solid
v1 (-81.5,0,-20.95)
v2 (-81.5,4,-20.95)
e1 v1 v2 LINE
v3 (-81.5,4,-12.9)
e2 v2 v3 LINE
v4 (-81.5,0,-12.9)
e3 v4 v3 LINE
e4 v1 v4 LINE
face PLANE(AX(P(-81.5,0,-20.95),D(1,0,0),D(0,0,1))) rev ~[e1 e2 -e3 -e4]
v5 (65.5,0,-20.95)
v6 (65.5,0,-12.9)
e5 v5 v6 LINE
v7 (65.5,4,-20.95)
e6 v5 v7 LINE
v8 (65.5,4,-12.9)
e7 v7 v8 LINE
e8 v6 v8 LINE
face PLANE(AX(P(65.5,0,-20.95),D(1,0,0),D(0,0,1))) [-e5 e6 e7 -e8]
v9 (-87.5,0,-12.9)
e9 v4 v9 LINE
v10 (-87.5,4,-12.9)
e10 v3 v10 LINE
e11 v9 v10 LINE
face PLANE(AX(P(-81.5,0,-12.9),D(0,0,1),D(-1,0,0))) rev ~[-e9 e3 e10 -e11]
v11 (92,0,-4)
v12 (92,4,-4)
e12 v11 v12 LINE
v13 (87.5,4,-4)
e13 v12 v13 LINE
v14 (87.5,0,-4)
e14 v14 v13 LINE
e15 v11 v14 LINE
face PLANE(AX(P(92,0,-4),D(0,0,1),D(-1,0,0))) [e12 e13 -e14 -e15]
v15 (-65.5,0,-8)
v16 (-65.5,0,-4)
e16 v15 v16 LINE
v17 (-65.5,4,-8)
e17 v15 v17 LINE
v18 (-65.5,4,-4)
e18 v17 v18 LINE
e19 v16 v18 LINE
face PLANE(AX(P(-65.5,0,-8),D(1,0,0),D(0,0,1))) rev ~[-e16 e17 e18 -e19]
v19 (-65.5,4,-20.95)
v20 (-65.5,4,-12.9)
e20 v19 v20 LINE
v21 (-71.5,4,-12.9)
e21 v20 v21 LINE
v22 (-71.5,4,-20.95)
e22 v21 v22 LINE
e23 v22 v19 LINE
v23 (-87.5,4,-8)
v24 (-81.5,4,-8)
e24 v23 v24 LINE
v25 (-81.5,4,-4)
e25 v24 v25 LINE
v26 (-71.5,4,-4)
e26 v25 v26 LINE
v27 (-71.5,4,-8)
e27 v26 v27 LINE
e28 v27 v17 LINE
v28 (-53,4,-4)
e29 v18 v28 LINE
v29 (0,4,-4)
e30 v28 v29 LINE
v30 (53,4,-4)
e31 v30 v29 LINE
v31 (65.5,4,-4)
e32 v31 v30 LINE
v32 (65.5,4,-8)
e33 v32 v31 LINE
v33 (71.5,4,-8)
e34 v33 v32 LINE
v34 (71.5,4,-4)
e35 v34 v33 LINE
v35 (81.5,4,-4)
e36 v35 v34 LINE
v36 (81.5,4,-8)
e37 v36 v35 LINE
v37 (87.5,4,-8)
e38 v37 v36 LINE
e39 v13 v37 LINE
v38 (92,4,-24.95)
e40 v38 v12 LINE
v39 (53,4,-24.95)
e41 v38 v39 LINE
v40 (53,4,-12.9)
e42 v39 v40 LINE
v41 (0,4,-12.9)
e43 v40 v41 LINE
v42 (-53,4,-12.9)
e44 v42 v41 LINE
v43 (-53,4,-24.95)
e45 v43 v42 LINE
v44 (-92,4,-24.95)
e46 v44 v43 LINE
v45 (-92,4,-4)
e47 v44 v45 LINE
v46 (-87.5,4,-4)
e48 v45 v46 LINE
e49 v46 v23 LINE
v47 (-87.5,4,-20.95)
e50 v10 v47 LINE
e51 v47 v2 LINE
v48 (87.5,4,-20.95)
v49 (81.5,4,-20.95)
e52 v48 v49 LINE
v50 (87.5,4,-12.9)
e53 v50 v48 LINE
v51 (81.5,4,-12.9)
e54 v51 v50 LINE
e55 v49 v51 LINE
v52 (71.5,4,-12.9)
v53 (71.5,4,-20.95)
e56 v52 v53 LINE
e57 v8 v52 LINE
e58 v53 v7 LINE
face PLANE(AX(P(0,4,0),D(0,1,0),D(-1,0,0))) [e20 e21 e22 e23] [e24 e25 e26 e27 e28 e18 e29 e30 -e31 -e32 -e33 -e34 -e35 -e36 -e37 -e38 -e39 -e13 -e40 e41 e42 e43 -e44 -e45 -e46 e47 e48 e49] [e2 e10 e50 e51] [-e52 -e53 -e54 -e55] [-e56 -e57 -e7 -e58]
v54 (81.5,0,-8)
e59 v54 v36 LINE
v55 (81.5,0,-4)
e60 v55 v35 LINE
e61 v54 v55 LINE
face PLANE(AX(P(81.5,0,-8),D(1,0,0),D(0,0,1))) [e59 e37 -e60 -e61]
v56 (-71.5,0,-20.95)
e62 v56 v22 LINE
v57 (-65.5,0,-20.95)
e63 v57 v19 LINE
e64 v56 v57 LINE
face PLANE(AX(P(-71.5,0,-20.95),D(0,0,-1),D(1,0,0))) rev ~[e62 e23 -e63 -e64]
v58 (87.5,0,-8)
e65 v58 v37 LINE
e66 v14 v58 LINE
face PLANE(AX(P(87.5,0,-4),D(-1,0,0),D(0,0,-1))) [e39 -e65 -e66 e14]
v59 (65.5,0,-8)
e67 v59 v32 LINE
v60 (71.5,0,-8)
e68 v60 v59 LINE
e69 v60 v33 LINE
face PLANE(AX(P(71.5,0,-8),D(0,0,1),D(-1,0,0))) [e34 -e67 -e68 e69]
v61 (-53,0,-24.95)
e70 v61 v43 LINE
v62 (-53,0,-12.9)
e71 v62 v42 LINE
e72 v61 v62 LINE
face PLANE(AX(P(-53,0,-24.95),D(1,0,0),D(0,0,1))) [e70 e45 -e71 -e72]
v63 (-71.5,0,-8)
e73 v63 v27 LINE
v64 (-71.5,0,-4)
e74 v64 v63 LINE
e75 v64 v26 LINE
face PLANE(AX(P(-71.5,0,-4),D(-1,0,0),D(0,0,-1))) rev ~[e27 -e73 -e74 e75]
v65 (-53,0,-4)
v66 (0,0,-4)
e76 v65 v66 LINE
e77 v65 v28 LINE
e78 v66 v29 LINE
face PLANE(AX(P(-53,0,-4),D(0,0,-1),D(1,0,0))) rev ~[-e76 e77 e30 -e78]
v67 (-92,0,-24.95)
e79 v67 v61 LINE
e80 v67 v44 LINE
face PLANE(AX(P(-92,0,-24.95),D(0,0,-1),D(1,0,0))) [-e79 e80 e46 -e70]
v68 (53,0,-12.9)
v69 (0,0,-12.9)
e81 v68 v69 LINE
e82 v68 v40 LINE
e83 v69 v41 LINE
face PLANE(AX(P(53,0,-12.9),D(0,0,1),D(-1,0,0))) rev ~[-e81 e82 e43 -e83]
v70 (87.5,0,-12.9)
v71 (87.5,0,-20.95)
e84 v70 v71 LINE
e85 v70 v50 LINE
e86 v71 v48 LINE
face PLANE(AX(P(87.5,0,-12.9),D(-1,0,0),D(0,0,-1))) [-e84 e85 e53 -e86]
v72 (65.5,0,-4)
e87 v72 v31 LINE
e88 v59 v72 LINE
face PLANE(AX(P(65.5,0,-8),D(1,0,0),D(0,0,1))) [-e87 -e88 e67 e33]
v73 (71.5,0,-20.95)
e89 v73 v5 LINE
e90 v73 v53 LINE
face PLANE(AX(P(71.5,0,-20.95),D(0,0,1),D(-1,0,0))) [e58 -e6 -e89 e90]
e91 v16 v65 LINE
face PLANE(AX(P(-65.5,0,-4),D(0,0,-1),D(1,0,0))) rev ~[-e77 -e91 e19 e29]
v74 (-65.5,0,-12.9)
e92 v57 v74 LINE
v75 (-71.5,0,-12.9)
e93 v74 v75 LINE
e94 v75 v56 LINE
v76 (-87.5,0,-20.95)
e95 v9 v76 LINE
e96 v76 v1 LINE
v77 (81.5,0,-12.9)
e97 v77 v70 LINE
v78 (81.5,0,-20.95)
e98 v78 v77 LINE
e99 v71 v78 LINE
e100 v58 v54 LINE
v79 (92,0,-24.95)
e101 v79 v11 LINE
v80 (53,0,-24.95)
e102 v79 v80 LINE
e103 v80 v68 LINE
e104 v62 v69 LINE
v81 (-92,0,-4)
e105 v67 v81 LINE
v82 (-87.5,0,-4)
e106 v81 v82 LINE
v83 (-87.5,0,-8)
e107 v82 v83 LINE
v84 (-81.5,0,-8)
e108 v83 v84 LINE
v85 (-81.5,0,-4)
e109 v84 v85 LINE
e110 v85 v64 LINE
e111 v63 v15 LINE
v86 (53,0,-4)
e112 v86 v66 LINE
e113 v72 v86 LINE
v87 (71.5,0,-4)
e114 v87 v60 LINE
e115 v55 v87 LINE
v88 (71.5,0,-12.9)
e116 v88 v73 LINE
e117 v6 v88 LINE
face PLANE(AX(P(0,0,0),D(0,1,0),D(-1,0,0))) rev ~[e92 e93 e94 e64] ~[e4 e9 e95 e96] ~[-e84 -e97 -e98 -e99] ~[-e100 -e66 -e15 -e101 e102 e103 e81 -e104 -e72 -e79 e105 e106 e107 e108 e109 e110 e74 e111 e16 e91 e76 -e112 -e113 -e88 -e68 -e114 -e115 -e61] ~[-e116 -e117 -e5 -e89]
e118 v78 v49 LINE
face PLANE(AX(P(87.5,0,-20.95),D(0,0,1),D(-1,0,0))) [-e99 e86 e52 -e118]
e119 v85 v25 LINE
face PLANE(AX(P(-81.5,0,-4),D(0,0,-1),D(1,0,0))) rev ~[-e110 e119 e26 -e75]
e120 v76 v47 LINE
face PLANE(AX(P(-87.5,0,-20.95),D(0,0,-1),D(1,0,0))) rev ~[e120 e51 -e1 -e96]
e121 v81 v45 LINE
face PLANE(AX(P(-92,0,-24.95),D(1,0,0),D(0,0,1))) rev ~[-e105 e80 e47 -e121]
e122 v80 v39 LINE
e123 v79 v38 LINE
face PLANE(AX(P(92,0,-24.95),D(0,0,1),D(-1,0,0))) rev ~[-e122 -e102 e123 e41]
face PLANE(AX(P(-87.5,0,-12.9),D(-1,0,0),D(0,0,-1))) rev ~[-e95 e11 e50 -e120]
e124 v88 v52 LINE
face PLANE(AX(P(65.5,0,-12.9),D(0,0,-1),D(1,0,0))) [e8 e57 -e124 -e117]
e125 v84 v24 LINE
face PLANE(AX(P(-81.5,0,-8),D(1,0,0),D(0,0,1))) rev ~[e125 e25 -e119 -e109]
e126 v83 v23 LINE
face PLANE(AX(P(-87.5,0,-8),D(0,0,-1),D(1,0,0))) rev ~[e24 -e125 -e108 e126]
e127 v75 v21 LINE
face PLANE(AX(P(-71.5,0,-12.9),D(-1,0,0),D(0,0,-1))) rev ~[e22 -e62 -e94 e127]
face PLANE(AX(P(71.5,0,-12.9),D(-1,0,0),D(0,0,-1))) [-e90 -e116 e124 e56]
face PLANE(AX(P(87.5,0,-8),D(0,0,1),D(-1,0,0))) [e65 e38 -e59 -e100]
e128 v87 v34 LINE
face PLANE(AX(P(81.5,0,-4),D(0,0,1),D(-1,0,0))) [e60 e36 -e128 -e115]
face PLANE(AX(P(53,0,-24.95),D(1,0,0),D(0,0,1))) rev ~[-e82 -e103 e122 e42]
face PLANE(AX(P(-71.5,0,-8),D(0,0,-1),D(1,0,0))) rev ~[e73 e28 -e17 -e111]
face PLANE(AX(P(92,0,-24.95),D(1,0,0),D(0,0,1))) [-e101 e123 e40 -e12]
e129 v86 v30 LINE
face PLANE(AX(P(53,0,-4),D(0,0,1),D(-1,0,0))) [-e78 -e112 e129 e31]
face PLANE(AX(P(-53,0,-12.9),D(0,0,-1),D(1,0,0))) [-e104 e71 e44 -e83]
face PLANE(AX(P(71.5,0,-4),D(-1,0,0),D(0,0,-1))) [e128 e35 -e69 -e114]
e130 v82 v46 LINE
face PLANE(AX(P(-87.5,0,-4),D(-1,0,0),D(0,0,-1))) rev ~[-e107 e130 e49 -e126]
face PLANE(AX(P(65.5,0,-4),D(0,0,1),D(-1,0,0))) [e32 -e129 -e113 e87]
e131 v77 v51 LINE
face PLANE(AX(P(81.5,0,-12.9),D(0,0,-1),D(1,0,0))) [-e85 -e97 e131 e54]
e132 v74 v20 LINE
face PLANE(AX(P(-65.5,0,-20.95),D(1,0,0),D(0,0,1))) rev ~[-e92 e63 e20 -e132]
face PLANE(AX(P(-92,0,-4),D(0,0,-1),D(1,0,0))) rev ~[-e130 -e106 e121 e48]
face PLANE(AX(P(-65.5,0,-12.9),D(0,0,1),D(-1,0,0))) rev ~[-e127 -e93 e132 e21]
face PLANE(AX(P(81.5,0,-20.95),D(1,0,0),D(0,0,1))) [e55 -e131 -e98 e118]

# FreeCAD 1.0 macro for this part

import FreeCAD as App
import Part
import Sketcher

doc = App.newDocument("Part")
body = doc.addObject("PartDesign::Body", "Body")

sketch1 = body.newObject("Sketcher::SketchObject", "Sketch")
sketch1.AttachmentSupport = (doc.getObject("XZ_Plane"), [""])
sketch1.MapMode = "FlatFace"
sketch1.addGeometry(Part.LineSegment(App.Vector(-53, -24.9, 0), App.Vector(-92, -24.9, 0)), False)
sketch1.addGeometry(Part.LineSegment(App.Vector(-92, -24.9, 0), App.Vector(-92, -4, 0)), False)
sketch1.addGeometry(Part.LineSegment(App.Vector(-92, -4, 0), App.Vector(-87.5, -4, 0)), False)
sketch1.addGeometry(Part.LineSegment(App.Vector(-87.5, -4, 0), App.Vector(-87.5, -8, 0)), False)
sketch1.addGeometry(Part.LineSegment(App.Vector(-87.5, -8, 0), App.Vector(-81.5, -8, 0)), False)
sketch1.addGeometry(Part.LineSegment(App.Vector(-81.5, -8, 0), App.Vector(-81.5, -4, 0)), False)
sketch1.addGeometry(Part.LineSegment(App.Vector(-81.5, -4, 0), App.Vector(-71.5, -4, 0)), False)
sketch1.addGeometry(Part.LineSegment(App.Vector(-71.5, -4, 0), App.Vector(-71.5, -8, 0)), False)
sketch1.addGeometry(Part.LineSegment(App.Vector(-71.5, -8, 0), App.Vector(-65.5, -8, 0)), False)
sketch1.addGeometry(Part.LineSegment(App.Vector(-65.5, -8, 0), App.Vector(-65.5, -4, 0)), False)
sketch1.addGeometry(Part.LineSegment(App.Vector(-65.5, -4, 0), App.Vector(65.5, -4, 0)), False)
sketch1.addGeometry(Part.LineSegment(App.Vector(65.5, -4, 0), App.Vector(65.5, -8, 0)), False)
sketch1.addGeometry(Part.LineSegment(App.Vector(65.5, -8, 0), App.Vector(71.5, -8, 0)), False)
sketch1.addGeometry(Part.LineSegment(App.Vector(71.5, -8, 0), App.Vector(71.5, -4, 0)), False)
sketch1.addGeometry(Part.LineSegment(App.Vector(71.5, -4, 0), App.Vector(81.5, -4, 0)), False)
sketch1.addGeometry(Part.LineSegment(App.Vector(81.5, -4, 0), App.Vector(81.5, -8, 0)), False)
sketch1.addGeometry(Part.LineSegment(App.Vector(81.5, -8, 0), App.Vector(87.5, -8, 0)), False)
sketch1.addGeometry(Part.LineSegment(App.Vector(87.5, -8, 0), App.Vector(87.5, -4, 0)), False)
sketch1.addGeometry(Part.LineSegment(App.Vector(87.5, -4, 0), App.Vector(92, -4, 0)), False)
sketch1.addGeometry(Part.LineSegment(App.Vector(92, -4, 0), App.Vector(92, -24.9, 0)), False)
sketch1.addGeometry(Part.LineSegment(App.Vector(92, -24.9, 0), App.Vector(53, -24.9, 0)), False)
sketch1.addGeometry(Part.LineSegment(App.Vector(53, -24.9, 0), App.Vector(53, -12.9, 0)), False)
sketch1.addGeometry(Part.LineSegment(App.Vector(53, -12.9, 0), App.Vector(-53, -12.9, 0)), False)
sketch1.addGeometry(Part.LineSegment(App.Vector(-53, -12.9, 0), App.Vector(-53, -24.9, 0)), False)
sketch1.addGeometry(Part.LineSegment(App.Vector(81.5, -20.9, 0), App.Vector(87.5, -20.9, 0)), False)
sketch1.addGeometry(Part.LineSegment(App.Vector(87.5, -20.9, 0), App.Vector(87.5, -12.9, 0)), False)
sketch1.addGeometry(Part.LineSegment(App.Vector(87.5, -12.9, 0), App.Vector(81.5, -12.9, 0)), False)
sketch1.addGeometry(Part.LineSegment(App.Vector(81.5, -12.9, 0), App.Vector(81.5, -20.9, 0)), False)
sketch1.addGeometry(Part.LineSegment(App.Vector(65.5, -20.9, 0), App.Vector(71.5, -20.9, 0)), False)
sketch1.addGeometry(Part.LineSegment(App.Vector(71.5, -20.9, 0), App.Vector(71.5, -12.9, 0)), False)
sketch1.addGeometry(Part.LineSegment(App.Vector(71.5, -12.9, 0), App.Vector(65.5, -12.9, 0)), False)
sketch1.addGeometry(Part.LineSegment(App.Vector(65.5, -12.9, 0), App.Vector(65.5, -20.9, 0)), False)
sketch1.addGeometry(Part.LineSegment(App.Vector(-71.5, -12.9, 0), App.Vector(-71.5, -20.9, 0)), False)
sketch1.addGeometry(Part.LineSegment(App.Vector(-71.5, -20.9, 0), App.Vector(-65.5, -20.9, 0)), False)
sketch1.addGeometry(Part.LineSegment(App.Vector(-65.5, -20.9, 0), App.Vector(-65.5, -12.9, 0)), False)
sketch1.addGeometry(Part.LineSegment(App.Vector(-65.5, -12.9, 0), App.Vector(-71.5, -12.9, 0)), False)
sketch1.addGeometry(Part.LineSegment(App.Vector(-87.5, -12.9, 0), App.Vector(-87.5, -20.9, 0)), False)
sketch1.addGeometry(Part.LineSegment(App.Vector(-87.5, -20.9, 0), App.Vector(-81.5, -20.9, 0)), False)
sketch1.addGeometry(Part.LineSegment(App.Vector(-81.5, -20.9, 0), App.Vector(-81.5, -12.9, 0)), False)
sketch1.addGeometry(Part.LineSegment(App.Vector(-81.5, -12.9, 0), App.Vector(-87.5, -12.9, 0)), False)
sketch1.addConstraint(Sketcher.Constraint("Coincident", 0, 2, 1, 1))
sketch1.addConstraint(Sketcher.Constraint("Coincident", 1, 2, 2, 1))
sketch1.addConstraint(Sketcher.Constraint("Coincident", 2, 2, 3, 1))
sketch1.addConstraint(Sketcher.Constraint("Coincident", 3, 2, 4, 1))
sketch1.addConstraint(Sketcher.Constraint("Coincident", 4, 2, 5, 1))
sketch1.addConstraint(Sketcher.Constraint("Coincident", 5, 2, 6, 1))
sketch1.addConstraint(Sketcher.Constraint("Coincident", 6, 2, 7, 1))
sketch1.addConstraint(Sketcher.Constraint("Coincident", 7, 2, 8, 1))
sketch1.addConstraint(Sketcher.Constraint("Coincident", 8, 2, 9, 1))
sketch1.addConstraint(Sketcher.Constraint("Coincident", 9, 2, 10, 1))
sketch1.addConstraint(Sketcher.Constraint("Coincident", 10, 2, 11, 1))
sketch1.addConstraint(Sketcher.Constraint("Coincident", 11, 2, 12, 1))
sketch1.addConstraint(Sketcher.Constraint("Coincident", 12, 2, 13, 1))
sketch1.addConstraint(Sketcher.Constraint("Coincident", 13, 2, 14, 1))
sketch1.addConstraint(Sketcher.Constraint("Coincident", 14, 2, 15, 1))
sketch1.addConstraint(Sketcher.Constraint("Coincident", 15, 2, 16, 1))
sketch1.addConstraint(Sketcher.Constraint("Coincident", 16, 2, 17, 1))
sketch1.addConstraint(Sketcher.Constraint("Coincident", 17, 2, 18, 1))
sketch1.addConstraint(Sketcher.Constraint("Coincident", 18, 2, 19, 1))
sketch1.addConstraint(Sketcher.Constraint("Coincident", 19, 2, 20, 1))
sketch1.addConstraint(Sketcher.Constraint("Coincident", 20, 2, 21, 1))
sketch1.addConstraint(Sketcher.Constraint("Coincident", 21, 2, 22, 1))
sketch1.addConstraint(Sketcher.Constraint("Coincident", 22, 2, 23, 1))
sketch1.addConstraint(Sketcher.Constraint("Coincident", 23, 2, 0, 1))
sketch1.addConstraint(Sketcher.Constraint("Coincident", 24, 2, 25, 1))
sketch1.addConstraint(Sketcher.Constraint("Coincident", 25, 2, 26, 1))
sketch1.addConstraint(Sketcher.Constraint("Coincident", 26, 2, 27, 1))
sketch1.addConstraint(Sketcher.Constraint("Coincident", 27, 2, 24, 1))
sketch1.addConstraint(Sketcher.Constraint("Coincident", 28, 2, 29, 1))
sketch1.addConstraint(Sketcher.Constraint("Coincident", 29, 2, 30, 1))
sketch1.addConstraint(Sketcher.Constraint("Coincident", 30, 2, 31, 1))
sketch1.addConstraint(Sketcher.Constraint("Coincident", 31, 2, 28, 1))
sketch1.addConstraint(Sketcher.Constraint("Coincident", 32, 2, 33, 1))
sketch1.addConstraint(Sketcher.Constraint("Coincident", 33, 2, 34, 1))
sketch1.addConstraint(Sketcher.Constraint("Coincident", 34, 2, 35, 1))
sketch1.addConstraint(Sketcher.Constraint("Coincident", 35, 2, 32, 1))
sketch1.addConstraint(Sketcher.Constraint("Coincident", 36, 2, 37, 1))
sketch1.addConstraint(Sketcher.Constraint("Coincident", 37, 2, 38, 1))
sketch1.addConstraint(Sketcher.Constraint("Coincident", 38, 2, 39, 1))
sketch1.addConstraint(Sketcher.Constraint("Coincident", 39, 2, 36, 1))
sketch1.addConstraint(Sketcher.Constraint("Horizontal", 0))
sketch1.addConstraint(Sketcher.Constraint("Vertical", 1))
sketch1.addConstraint(Sketcher.Constraint("Horizontal", 2))
sketch1.addConstraint(Sketcher.Constraint("Vertical", 3))
sketch1.addConstraint(Sketcher.Constraint("Horizontal", 4))
sketch1.addConstraint(Sketcher.Constraint("Vertical", 5))
sketch1.addConstraint(Sketcher.Constraint("Horizontal", 6))
sketch1.addConstraint(Sketcher.Constraint("Vertical", 7))
sketch1.addConstraint(Sketcher.Constraint("Horizontal", 8))
sketch1.addConstraint(Sketcher.Constraint("Vertical", 9))
sketch1.addConstraint(Sketcher.Constraint("Horizontal", 10))
sketch1.addConstraint(Sketcher.Constraint("Vertical", 11))
sketch1.addConstraint(Sketcher.Constraint("Horizontal", 12))
sketch1.addConstraint(Sketcher.Constraint("Vertical", 13))
sketch1.addConstraint(Sketcher.Constraint("Horizontal", 14))
sketch1.addConstraint(Sketcher.Constraint("Vertical", 15))
sketch1.addConstraint(Sketcher.Constraint("Horizontal", 16))
sketch1.addConstraint(Sketcher.Constraint("Vertical", 17))
sketch1.addConstraint(Sketcher.Constraint("Horizontal", 18))
sketch1.addConstraint(Sketcher.Constraint("Vertical", 19))
sketch1.addConstraint(Sketcher.Constraint("Horizontal", 20))
sketch1.addConstraint(Sketcher.Constraint("Vertical", 21))
sketch1.addConstraint(Sketcher.Constraint("Horizontal", 22))
sketch1.addConstraint(Sketcher.Constraint("Vertical", 23))
sketch1.addConstraint(Sketcher.Constraint("Horizontal", 24))
sketch1.addConstraint(Sketcher.Constraint("Vertical", 25))
sketch1.addConstraint(Sketcher.Constraint("Horizontal", 26))
sketch1.addConstraint(Sketcher.Constraint("Vertical", 27))
sketch1.addConstraint(Sketcher.Constraint("Horizontal", 28))
sketch1.addConstraint(Sketcher.Constraint("Vertical", 29))
sketch1.addConstraint(Sketcher.Constraint("Horizontal", 30))
sketch1.addConstraint(Sketcher.Constraint("Vertical", 31))
sketch1.addConstraint(Sketcher.Constraint("Vertical", 32))
sketch1.addConstraint(Sketcher.Constraint("Horizontal", 33))
sketch1.addConstraint(Sketcher.Constraint("Vertical", 34))
sketch1.addConstraint(Sketcher.Constraint("Horizontal", 35))
sketch1.addConstraint(Sketcher.Constraint("Vertical", 36))
sketch1.addConstraint(Sketcher.Constraint("Horizontal", 37))
sketch1.addConstraint(Sketcher.Constraint("Vertical", 38))
sketch1.addConstraint(Sketcher.Constraint("Horizontal", 39))
sketch1.addConstraint(Sketcher.Constraint("Symmetric", 8, 2, 11, 2, -2))
sketch1.addConstraint(Sketcher.Constraint("Symmetric", 6, 2, 13, 2, -2))
sketch1.addConstraint(Sketcher.Constraint("Symmetric", 4, 2, 15, 2, -2))
sketch1.addConstraint(Sketcher.Constraint("Symmetric", 2, 2, 17, 2, -2))
sketch1.addConstraint(Sketcher.Constraint("Symmetric", 0, 2, 19, 2, -2))
sketch1.addConstraint(Sketcher.Constraint("Symmetric", 28, 2, 32, 2, -2))
sketch1.addConstraint(Sketcher.Constraint("Symmetric", 30, 2, 34, 2, -2))
sketch1.addConstraint(Sketcher.Constraint("Symmetric", 24, 2, 36, 2, -2))
sketch1.addConstraint(Sketcher.Constraint("Symmetric", 26, 2, 38, 2, -2))
sketch1.addConstraint(Sketcher.Constraint("Horizontal", 2, 2, 5, 2))
sketch1.addConstraint(Sketcher.Constraint("Horizontal", 4, 2, 7, 2))
sketch1.addConstraint(Sketcher.Constraint("Horizontal", 6, 2, 9, 2))
sketch1.addConstraint(Sketcher.Constraint("Horizontal", 22, 2, 25, 2))
sketch1.addConstraint(Sketcher.Constraint("Horizontal", 27, 2, 28, 2))
sketch1.addConstraint(Sketcher.Constraint("Horizontal", 26, 2, 29, 2))
sketch1.addConstraint(Sketcher.Constraint("Vertical", 17, 2, 24, 2))
sketch1.addConstraint(Sketcher.Constraint("Vertical", 15, 2, 26, 2))
sketch1.addConstraint(Sketcher.Constraint("Vertical", 13, 2, 28, 2))
sketch1.addConstraint(Sketcher.Constraint("Vertical", 11, 2, 30, 2))
sketch1.addConstraint(Sketcher.Constraint("Equal", 4, 8))
sketch1.addConstraint(Sketcher.Constraint("Equal", 0, 20))
sketch1.addConstraint(Sketcher.Constraint("DistanceX", 4, 1, 4, 2, 6.0))
sketch1.addConstraint(Sketcher.Constraint("DistanceX", 6, 1, 6, 2, 10.0))
sketch1.addConstraint(Sketcher.Constraint("DistanceY", 3, 2, 3, 1, 4.0))
sketch1.addConstraint(Sketcher.Constraint("DistanceX", 2, 1, 2, 2, 4.5))
sketch1.addConstraint(Sketcher.Constraint("DistanceX", 0, 2, -1, 1, 92.0))
sketch1.addConstraint(Sketcher.Constraint("DistanceY", 1, 2, -1, 1, 4.0))
sketch1.addConstraint(Sketcher.Constraint("DistanceY", 19, 2, 24, 2, 4.0))
sketch1.addConstraint(Sketcher.Constraint("DistanceY", 25, 1, 25, 2, 8.05))
sketch1.addConstraint(Sketcher.Constraint("DistanceX", 20, 2, 11, 2, 12.5))
sketch1.addConstraint(Sketcher.Constraint("DistanceY", 21, 2, 11, 2, 4.9))
pad1 = body.newObject("PartDesign::Pad", "Pad")
pad1.Profile = sketch1
pad1.Length = 4
pad1.Reversed = True

doc.recompute()
